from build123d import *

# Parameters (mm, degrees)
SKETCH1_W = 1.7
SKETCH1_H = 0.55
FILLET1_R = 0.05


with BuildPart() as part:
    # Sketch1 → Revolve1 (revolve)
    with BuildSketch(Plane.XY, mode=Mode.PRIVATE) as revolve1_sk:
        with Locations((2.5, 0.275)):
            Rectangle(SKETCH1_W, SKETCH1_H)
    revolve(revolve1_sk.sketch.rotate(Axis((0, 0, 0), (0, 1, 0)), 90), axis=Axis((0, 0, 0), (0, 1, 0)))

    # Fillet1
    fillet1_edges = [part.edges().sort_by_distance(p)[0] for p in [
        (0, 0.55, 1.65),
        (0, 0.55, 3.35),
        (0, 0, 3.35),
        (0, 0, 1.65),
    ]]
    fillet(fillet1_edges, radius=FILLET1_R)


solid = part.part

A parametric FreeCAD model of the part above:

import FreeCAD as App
import Part
import Sketcher

V = App.Vector
Q = App.Units.Quantity


def edges_at(feature, points):
    """Names of the edges that pass closest to the given points."""
    edges = feature.Shape.Edges
    near = lambda p: min(range(len(edges)), key=lambda i: edges[i].distToShape(Part.Vertex(*p))[0])
    return sorted({f"Edge{near(p) + 1}" for p in points})


def add_polygon(sketch, points):
    """Adds a closed chain of lines whose ends are joined by coincident constraints."""
    first, n = sketch.GeometryCount, len(points)
    for a, b in zip(points, points[1:] + points[:1]):
        sketch.addGeometry(Part.LineSegment(App.Vector(*a, 0), App.Vector(*b, 0)), False)
    for i in range(n):
        sketch.addConstraint(Sketcher.Constraint("Coincident", first + i, 2, first + (i + 1) % n, 1))

doc = App.newDocument("Part")
body = doc.addObject("PartDesign::Body", "Body")

# Sketch on XY plane
sketch1 = doc.addObject("Sketcher::SketchObject", "Sketch")
body.addObject(sketch1)
sketch1.AttachmentSupport = (doc.XY_Plane, [""])
sketch1.MapMode = "FlatFace"
add_polygon(sketch1, [(1.6, 0.6), (1.6, 0), (3.4, 0), (3.4, 0.6)])  # lines 0-3
sketch1.addConstraint(Sketcher.Constraint("Vertical", 0))
sketch1.addConstraint(Sketcher.Constraint("Horizontal", 1))
sketch1.addConstraint(Sketcher.Constraint("Vertical", 2))
sketch1.addConstraint(Sketcher.Constraint("Horizontal", 3))
sketch1.addConstraint(Sketcher.Constraint("PointOnObject", 0, 2, -1))
sketch1.addConstraint(Sketcher.Constraint("DistanceX", 1, 1, 1, 2, Q("1.7 mm")))
sketch1.addConstraint(Sketcher.Constraint("DistanceY", 0, 2, 0, 1, Q("0.55 mm")))
sketch1.addConstraint(Sketcher.Constraint("DistanceX", -1, 1, 0, 2, Q("1.65 mm")))
revolution = doc.addObject("PartDesign::Revolution", "Revolution")
body.addObject(revolution)
revolution.Profile = sketch1
revolution.ReferenceAxis = (sketch1, ["V_Axis"])
revolution.Angle = 360
doc.recompute()

fillet = doc.addObject("PartDesign::Fillet", "Fillet")
body.addObject(fillet)
fillet.Base = (revolution, edges_at(revolution, [
    (0, 0.55, 1.65),
    (0, 0.55, 3.35),
    (0, 0, 3.35),
    (0, 0, 1.65),
]))
fillet.Radius = 0.05

doc.recompute()
